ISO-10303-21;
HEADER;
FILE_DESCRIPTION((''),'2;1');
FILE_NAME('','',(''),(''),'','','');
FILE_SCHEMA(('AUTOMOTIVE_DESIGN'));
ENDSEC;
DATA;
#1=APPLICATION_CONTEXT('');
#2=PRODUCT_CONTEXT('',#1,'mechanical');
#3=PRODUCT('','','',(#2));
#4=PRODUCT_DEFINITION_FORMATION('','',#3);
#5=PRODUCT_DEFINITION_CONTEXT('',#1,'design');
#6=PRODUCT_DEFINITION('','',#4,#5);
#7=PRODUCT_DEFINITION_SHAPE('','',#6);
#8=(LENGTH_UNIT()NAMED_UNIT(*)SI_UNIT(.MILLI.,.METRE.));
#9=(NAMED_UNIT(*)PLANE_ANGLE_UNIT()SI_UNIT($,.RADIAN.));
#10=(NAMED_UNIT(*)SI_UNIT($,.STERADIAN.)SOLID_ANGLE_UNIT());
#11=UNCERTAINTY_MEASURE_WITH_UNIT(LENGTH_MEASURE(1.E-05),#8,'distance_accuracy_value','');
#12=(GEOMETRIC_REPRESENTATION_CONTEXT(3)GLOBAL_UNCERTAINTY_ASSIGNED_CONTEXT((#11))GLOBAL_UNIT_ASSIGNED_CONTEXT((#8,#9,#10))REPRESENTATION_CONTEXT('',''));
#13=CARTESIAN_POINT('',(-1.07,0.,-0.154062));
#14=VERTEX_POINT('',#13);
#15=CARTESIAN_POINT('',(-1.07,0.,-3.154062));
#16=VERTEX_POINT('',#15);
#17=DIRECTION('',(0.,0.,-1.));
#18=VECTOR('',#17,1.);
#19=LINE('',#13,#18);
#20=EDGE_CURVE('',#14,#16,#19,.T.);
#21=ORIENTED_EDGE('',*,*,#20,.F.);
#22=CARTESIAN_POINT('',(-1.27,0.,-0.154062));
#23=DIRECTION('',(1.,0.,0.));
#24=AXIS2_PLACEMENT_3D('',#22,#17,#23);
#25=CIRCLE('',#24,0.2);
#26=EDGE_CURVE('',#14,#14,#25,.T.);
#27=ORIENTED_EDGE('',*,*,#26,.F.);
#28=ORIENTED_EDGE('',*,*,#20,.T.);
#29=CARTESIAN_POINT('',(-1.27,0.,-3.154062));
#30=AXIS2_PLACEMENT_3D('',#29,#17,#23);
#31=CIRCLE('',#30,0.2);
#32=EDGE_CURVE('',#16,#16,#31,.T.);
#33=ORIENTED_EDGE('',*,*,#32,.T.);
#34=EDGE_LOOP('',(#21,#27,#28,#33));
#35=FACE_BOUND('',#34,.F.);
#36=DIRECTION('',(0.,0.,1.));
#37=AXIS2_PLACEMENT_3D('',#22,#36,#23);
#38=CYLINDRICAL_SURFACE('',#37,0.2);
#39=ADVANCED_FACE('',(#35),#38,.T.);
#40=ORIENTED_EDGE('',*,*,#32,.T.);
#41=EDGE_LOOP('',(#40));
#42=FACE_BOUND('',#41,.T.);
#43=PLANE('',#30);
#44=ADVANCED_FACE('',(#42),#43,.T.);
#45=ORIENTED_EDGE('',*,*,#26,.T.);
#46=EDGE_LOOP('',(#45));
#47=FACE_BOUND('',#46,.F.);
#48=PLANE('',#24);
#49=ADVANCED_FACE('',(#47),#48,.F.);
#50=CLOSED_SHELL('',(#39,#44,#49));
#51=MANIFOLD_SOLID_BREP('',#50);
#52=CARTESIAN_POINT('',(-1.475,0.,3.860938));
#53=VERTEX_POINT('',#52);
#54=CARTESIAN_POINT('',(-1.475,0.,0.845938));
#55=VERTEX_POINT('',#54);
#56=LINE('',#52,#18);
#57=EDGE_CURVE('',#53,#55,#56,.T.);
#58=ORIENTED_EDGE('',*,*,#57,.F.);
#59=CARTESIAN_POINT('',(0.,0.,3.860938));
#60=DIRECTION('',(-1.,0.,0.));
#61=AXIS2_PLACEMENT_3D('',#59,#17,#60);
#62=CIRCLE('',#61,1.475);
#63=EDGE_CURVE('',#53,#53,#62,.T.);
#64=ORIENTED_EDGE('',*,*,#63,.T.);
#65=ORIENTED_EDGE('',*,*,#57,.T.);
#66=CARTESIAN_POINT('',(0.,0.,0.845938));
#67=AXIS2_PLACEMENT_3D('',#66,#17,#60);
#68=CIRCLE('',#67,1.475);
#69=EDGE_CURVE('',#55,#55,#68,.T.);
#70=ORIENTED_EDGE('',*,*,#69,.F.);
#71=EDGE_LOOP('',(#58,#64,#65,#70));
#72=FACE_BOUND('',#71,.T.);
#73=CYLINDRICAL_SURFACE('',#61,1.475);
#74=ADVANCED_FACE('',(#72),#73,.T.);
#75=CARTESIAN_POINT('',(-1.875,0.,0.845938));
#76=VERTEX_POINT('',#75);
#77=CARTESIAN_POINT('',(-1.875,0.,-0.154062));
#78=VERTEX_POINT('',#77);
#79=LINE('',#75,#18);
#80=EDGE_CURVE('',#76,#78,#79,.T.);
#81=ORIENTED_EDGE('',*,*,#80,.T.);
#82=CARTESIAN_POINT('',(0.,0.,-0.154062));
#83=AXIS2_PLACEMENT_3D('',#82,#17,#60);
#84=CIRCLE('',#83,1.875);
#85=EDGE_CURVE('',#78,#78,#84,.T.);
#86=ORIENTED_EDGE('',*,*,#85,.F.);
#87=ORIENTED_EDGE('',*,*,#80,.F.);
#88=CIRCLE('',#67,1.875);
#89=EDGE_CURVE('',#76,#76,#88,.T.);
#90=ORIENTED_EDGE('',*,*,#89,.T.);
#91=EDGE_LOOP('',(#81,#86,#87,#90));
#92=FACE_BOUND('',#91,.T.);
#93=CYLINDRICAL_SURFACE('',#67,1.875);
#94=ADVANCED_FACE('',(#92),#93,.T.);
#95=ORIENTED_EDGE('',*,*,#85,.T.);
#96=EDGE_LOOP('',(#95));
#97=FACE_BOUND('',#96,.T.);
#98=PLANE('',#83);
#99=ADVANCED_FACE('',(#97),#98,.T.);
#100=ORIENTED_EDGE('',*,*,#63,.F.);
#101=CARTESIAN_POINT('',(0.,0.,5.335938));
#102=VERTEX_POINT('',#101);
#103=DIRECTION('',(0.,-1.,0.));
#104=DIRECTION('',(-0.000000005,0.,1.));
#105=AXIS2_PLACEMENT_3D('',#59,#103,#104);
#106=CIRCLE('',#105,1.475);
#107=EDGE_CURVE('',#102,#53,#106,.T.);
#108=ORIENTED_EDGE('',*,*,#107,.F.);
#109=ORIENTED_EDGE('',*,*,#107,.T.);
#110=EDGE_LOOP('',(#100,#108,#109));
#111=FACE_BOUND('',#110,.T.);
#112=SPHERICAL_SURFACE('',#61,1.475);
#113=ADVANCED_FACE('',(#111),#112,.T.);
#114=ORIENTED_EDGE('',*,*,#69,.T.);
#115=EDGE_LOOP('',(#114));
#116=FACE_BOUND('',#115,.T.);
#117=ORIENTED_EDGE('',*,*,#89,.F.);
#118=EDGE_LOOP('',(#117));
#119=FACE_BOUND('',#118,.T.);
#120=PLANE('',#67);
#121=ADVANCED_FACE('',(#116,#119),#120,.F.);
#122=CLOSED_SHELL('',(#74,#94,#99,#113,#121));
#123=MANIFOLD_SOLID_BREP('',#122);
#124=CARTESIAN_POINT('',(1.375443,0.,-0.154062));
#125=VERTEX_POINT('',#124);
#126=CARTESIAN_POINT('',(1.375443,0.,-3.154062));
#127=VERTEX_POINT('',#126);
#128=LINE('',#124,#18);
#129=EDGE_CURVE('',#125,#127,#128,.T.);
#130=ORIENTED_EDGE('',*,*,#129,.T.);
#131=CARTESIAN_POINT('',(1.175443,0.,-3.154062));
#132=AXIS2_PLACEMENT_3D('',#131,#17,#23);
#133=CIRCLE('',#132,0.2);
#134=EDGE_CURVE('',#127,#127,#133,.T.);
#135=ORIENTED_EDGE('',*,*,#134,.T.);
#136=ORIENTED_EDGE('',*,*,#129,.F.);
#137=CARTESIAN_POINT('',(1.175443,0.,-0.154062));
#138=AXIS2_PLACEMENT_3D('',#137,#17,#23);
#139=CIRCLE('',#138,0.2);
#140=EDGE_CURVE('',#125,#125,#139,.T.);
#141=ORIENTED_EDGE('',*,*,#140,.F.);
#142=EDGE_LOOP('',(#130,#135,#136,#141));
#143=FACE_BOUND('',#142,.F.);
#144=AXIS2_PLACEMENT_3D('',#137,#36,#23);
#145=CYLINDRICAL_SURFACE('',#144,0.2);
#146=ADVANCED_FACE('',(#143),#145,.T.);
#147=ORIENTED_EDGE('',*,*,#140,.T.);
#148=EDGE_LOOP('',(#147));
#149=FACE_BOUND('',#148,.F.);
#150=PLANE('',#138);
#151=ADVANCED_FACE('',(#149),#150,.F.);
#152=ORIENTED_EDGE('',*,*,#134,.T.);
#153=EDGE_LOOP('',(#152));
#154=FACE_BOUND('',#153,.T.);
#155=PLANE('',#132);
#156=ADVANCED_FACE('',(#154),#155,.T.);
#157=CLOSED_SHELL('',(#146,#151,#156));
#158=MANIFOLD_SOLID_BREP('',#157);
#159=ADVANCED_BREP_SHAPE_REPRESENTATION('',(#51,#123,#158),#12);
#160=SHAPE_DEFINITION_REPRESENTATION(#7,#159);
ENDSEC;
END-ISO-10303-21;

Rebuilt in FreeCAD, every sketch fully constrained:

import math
import FreeCAD as App
import Part
import Sketcher

doc = App.newDocument("Part")
body = doc.addObject("PartDesign::Body", "Body")

sketch1 = body.newObject("Sketcher::SketchObject", "Sketch")
sketch1.AttachmentSupport = (doc.getObject("XZ_Plane"), [""])
sketch1.MapMode = "FlatFace"
sketch1.addGeometry(Part.LineSegment(App.Vector(0, -0.154062, 0), App.Vector(0, 5.335938, 0)), False)
sketch1.addGeometry(Part.ArcOfCircle(Part.Circle(App.Vector(0, 3.860938, 0), App.Vector(0, 0, 1), 1.475), math.radians(90), math.radians(180)), False)
sketch1.addGeometry(Part.LineSegment(App.Vector(-1.475, 3.860938, 0), App.Vector(-1.475, 0.845938, 0)), False)
sketch1.addGeometry(Part.LineSegment(App.Vector(-1.475, 0.845938, 0), App.Vector(-1.875, 0.845938, 0)), False)
sketch1.addGeometry(Part.LineSegment(App.Vector(-1.875, 0.845938, 0), App.Vector(-1.875, -0.154062, 0)), False)
sketch1.addGeometry(Part.LineSegment(App.Vector(-1.875, -0.154062, 0), App.Vector(0, -0.154062, 0)), False)
sketch1.addConstraint(Sketcher.Constraint("Coincident", 0, 2, 1, 1))
sketch1.addConstraint(Sketcher.Constraint("Tangent", 1, 2, 2, 1))
sketch1.addConstraint(Sketcher.Constraint("Coincident", 2, 2, 3, 1))
sketch1.addConstraint(Sketcher.Constraint("Coincident", 3, 2, 4, 1))
sketch1.addConstraint(Sketcher.Constraint("Coincident", 4, 2, 5, 1))
sketch1.addConstraint(Sketcher.Constraint("Coincident", 5, 2, 0, 1))
sketch1.addConstraint(Sketcher.Constraint("Vertical", 0))
sketch1.addConstraint(Sketcher.Constraint("Vertical", 2))
sketch1.addConstraint(Sketcher.Constraint("Horizontal", 3))
sketch1.addConstraint(Sketcher.Constraint("Vertical", 4))
sketch1.addConstraint(Sketcher.Constraint("Horizontal", 5))
sketch1.addConstraint(Sketcher.Constraint("PointOnObject", 1, 3, -2))
sketch1.addConstraint(Sketcher.Constraint("PointOnObject", 0, 2, -2))
sketch1.addConstraint(Sketcher.Constraint("DistanceY", 4, 2, 4, 1, 1.0))
sketch1.addConstraint(Sketcher.Constraint("DistanceX", 3, 2, 3, 1, 0.4))
sketch1.addConstraint(Sketcher.Constraint("Radius", 1, 1.475))
sketch1.addConstraint(Sketcher.Constraint("DistanceY", 0, 1, 0, 2, 5.49))
sketch1.addConstraint(Sketcher.Constraint("DistanceY", -1, 1, 1, 2, 3.860938))
revolution = body.newObject("PartDesign::Revolution", "Revolution")
revolution.Profile = sketch1
revolution.ReferenceAxis = (sketch1, ["V_Axis"])
revolution.Angle = 360
body2 = doc.addObject("PartDesign::Body", "Body001")
body2.AllowCompound = True

sketch2 = body2.newObject("Sketcher::SketchObject", "Sketch001")
sketch2.AttachmentSupport = (doc.getObject("XY_Plane001"), [""])
sketch2.MapMode = "FlatFace"
sketch2.AttachmentOffset = App.Placement(App.Vector(0, 0, -0.154062), App.Rotation())
sketch2.addGeometry(Part.Circle(App.Vector(-1.27, 0, 0), App.Vector(0, 0, 1), 0.2), False)
sketch2.addGeometry(Part.Circle(App.Vector(1.175443, 0, 0), App.Vector(0, 0, 1), 0.2), False)
sketch2.addConstraint(Sketcher.Constraint("Equal", 0, 1))
sketch2.addConstraint(Sketcher.Constraint("PointOnObject", 0, 3, -1))
sketch2.addConstraint(Sketcher.Constraint("PointOnObject", 1, 3, -1))
sketch2.addConstraint(Sketcher.Constraint("Diameter", 0, 0.4))
sketch2.addConstraint(Sketcher.Constraint("DistanceX", 0, 3, -1, 1, 1.27))
sketch2.addConstraint(Sketcher.Constraint("DistanceX", -1, 1, 1, 3, 1.175443))
pad1 = body2.newObject("PartDesign::Pad", "Pad")
pad1.Profile = sketch2
pad1.Length = 3
pad1.Reversed = True

doc.recompute()
